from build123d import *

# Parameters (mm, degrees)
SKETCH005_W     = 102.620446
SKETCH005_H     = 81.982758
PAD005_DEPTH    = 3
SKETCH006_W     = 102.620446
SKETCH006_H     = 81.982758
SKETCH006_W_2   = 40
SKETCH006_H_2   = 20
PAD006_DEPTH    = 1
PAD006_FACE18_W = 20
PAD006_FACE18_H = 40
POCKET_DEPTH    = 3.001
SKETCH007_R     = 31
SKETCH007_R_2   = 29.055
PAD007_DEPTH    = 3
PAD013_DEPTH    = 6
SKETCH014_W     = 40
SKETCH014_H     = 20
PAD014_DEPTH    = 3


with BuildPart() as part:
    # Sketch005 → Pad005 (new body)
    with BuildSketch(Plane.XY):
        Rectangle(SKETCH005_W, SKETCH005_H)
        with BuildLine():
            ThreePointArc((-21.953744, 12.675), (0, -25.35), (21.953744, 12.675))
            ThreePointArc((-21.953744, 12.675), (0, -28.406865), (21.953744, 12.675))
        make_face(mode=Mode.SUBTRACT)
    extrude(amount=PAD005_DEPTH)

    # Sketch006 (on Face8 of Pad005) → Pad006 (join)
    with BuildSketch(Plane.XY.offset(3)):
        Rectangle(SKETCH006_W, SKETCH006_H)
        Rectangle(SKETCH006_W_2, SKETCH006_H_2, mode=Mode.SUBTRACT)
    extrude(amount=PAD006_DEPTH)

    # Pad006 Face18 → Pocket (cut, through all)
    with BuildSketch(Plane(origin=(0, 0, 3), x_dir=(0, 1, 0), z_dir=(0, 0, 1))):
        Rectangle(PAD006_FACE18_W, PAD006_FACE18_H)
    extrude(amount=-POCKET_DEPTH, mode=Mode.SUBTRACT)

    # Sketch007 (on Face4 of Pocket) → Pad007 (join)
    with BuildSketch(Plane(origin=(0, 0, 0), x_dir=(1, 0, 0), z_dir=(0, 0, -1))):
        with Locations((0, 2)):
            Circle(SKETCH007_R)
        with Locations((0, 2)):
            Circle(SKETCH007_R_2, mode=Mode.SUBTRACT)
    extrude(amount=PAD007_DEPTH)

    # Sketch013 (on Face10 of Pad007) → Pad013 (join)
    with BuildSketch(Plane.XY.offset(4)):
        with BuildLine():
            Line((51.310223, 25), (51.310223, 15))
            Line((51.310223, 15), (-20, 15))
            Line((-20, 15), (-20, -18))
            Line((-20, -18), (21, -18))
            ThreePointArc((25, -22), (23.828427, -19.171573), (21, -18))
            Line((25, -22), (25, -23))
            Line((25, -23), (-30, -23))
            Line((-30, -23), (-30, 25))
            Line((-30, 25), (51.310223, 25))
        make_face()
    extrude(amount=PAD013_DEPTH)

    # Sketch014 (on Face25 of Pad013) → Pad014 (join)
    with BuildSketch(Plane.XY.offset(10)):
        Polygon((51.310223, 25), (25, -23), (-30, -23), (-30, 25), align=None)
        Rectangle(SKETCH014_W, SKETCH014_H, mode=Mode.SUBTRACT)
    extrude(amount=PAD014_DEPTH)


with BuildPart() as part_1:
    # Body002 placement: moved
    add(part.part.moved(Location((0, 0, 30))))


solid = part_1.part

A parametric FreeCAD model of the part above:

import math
import FreeCAD as App
import Part
import Sketcher

V = App.Vector

doc = App.newDocument("Part")
body = doc.addObject("PartDesign::Body", "Body")

# Sketch on XY plane
sketch1 = doc.addObject("Sketcher::SketchObject", "Sketch")
body.addObject(sketch1)
sketch1.AttachmentSupport = (doc.XY_Plane, [""])
sketch1.MapMode = "FlatFace"
sketch1.addGeometry(Part.LineSegment(V(-51, 41, 0), V(-51, -41, 0)), False)
sketch1.addGeometry(Part.LineSegment(V(-51, -41, 0), V(51, -41, 0)), False)
sketch1.addGeometry(Part.LineSegment(V(51, -41, 0), V(51, 41, 0)), False)
sketch1.addGeometry(Part.LineSegment(V(51, 41, 0), V(-51, 41, 0)), False)
sketch1.addGeometry(Part.ArcOfCircle(Part.Circle(V(0, -2, 0), V(0, 0, 1), 26), math.radians(146), math.radians(394)), False)
sketch1.addGeometry(Part.ArcOfCircle(Part.Circle(V(0, 0, 0), V(0, 0, 1), 25), math.radians(150), math.radians(390)), False)
sketch1.addConstraint(Sketcher.Constraint("Coincident", 0, 2, 1, 1))
sketch1.addConstraint(Sketcher.Constraint("Coincident", 1, 2, 2, 1))
sketch1.addConstraint(Sketcher.Constraint("Coincident", 2, 2, 3, 1))
sketch1.addConstraint(Sketcher.Constraint("Coincident", 3, 2, 0, 1))
sketch1.addConstraint(Sketcher.Constraint("Coincident", 4, 1, 5, 1))
sketch1.addConstraint(Sketcher.Constraint("Coincident", 5, 2, 4, 2))
sketch1.addConstraint(Sketcher.Constraint("Vertical", 0))
sketch1.addConstraint(Sketcher.Constraint("Horizontal", 1))
sketch1.addConstraint(Sketcher.Constraint("Vertical", 2))
sketch1.addConstraint(Sketcher.Constraint("Horizontal", 3))
sketch1.addConstraint(Sketcher.Constraint("Coincident", 5, 3, -1, 1))
sketch1.addConstraint(Sketcher.Constraint("Symmetric", 0, 2, 2, 2, -1, 1))
sketch1.addConstraint(Sketcher.Constraint("PointOnObject", 4, 3, -2))
sketch1.addConstraint(Sketcher.Constraint("Radius", 5, 25.35))
sketch1.addConstraint(Sketcher.Constraint("DistanceY", 4, 3, -1, 1, 2.0))
sketch1.addConstraint(Sketcher.Constraint("DistanceY", -1, 1, 4, 1, 12.675))
sketch1.addConstraint(Sketcher.Constraint("DistanceY", 0, 2, 0, 1, 81.982758))
sketch1.addConstraint(Sketcher.Constraint("DistanceX", 1, 1, 1, 2, 102.620446))
pad1 = doc.addObject("PartDesign::Pad", "Pad")
body.addObject(pad1)
pad1.Profile = sketch1
pad1.Length = 3

# Sketch on XY plane
sketch2 = doc.addObject("Sketcher::SketchObject", "Sketch001")
body.addObject(sketch2)
sketch2.AttachmentSupport = (doc.XY_Plane, [""])
sketch2.MapMode = "FlatFace"
sketch2.AttachmentOffset = App.Placement(V(0, 0, 3), App.Rotation())
sketch2.addGeometry(Part.LineSegment(V(-51, 41, 0), V(-51, -41, 0)), False)
sketch2.addGeometry(Part.LineSegment(V(-51, -41, 0), V(51, -41, 0)), False)
sketch2.addGeometry(Part.LineSegment(V(51, -41, 0), V(51, 41, 0)), False)
sketch2.addGeometry(Part.LineSegment(V(51, 41, 0), V(-51, 41, 0)), False)
sketch2.addGeometry(Part.LineSegment(V(20, -10, 0), V(-20, -10, 0)), False)
sketch2.addGeometry(Part.LineSegment(V(-20, -10, 0), V(-20, 10, 0)), False)
sketch2.addGeometry(Part.LineSegment(V(-20, 10, 0), V(20, 10, 0)), False)
sketch2.addGeometry(Part.LineSegment(V(20, 10, 0), V(20, -10, 0)), False)
sketch2.addConstraint(Sketcher.Constraint("Coincident", 0, 2, 1, 1))
sketch2.addConstraint(Sketcher.Constraint("Coincident", 1, 2, 2, 1))
sketch2.addConstraint(Sketcher.Constraint("Coincident", 2, 2, 3, 1))
sketch2.addConstraint(Sketcher.Constraint("Coincident", 3, 2, 0, 1))
sketch2.addConstraint(Sketcher.Constraint("Coincident", 4, 2, 5, 1))
sketch2.addConstraint(Sketcher.Constraint("Coincident", 5, 2, 6, 1))
sketch2.addConstraint(Sketcher.Constraint("Coincident", 6, 2, 7, 1))
sketch2.addConstraint(Sketcher.Constraint("Coincident", 7, 2, 4, 1))
sketch2.addConstraint(Sketcher.Constraint("Vertical", 0))
sketch2.addConstraint(Sketcher.Constraint("Horizontal", 1))
sketch2.addConstraint(Sketcher.Constraint("Vertical", 2))
sketch2.addConstraint(Sketcher.Constraint("Horizontal", 3))
sketch2.addConstraint(Sketcher.Constraint("Horizontal", 4))
sketch2.addConstraint(Sketcher.Constraint("Vertical", 5))
sketch2.addConstraint(Sketcher.Constraint("Horizontal", 6))
sketch2.addConstraint(Sketcher.Constraint("Vertical", 7))
sketch2.addConstraint(Sketcher.Constraint("Symmetric", 0, 2, 2, 2, -1, 1))
sketch2.addConstraint(Sketcher.Constraint("Symmetric", 4, 2, 6, 2, -1, 1))
sketch2.addConstraint(Sketcher.Constraint("DistanceX", 4, 2, 4, 1, 40.0))
sketch2.addConstraint(Sketcher.Constraint("DistanceY", 5, 1, 5, 2, 20.0))
sketch2.addConstraint(Sketcher.Constraint("DistanceY", 0, 2, 0, 1, 81.982758))
sketch2.addConstraint(Sketcher.Constraint("DistanceX", 1, 1, 1, 2, 102.620446))
pad2 = doc.addObject("PartDesign::Pad", "Pad001")
body.addObject(pad2)
pad2.Profile = sketch2
pad2.Length = 1

# Sketch on XY plane
sketch3 = doc.addObject("Sketcher::SketchObject", "Sketch002")
body.addObject(sketch3)
sketch3.AttachmentSupport = (doc.XY_Plane, [""])
sketch3.MapMode = "FlatFace"
sketch3.AttachmentOffset = App.Placement(V(0, 0, 3), App.Rotation())
sketch3.addGeometry(Part.LineSegment(V(-20, -10, 0), V(20, -10, 0)), False)
sketch3.addGeometry(Part.LineSegment(V(20, -10, 0), V(20, 10, 0)), False)
sketch3.addGeometry(Part.LineSegment(V(20, 10, 0), V(-20, 10, 0)), False)
sketch3.addGeometry(Part.LineSegment(V(-20, 10, 0), V(-20, -10, 0)), False)
sketch3.addConstraint(Sketcher.Constraint("Coincident", 0, 2, 1, 1))
sketch3.addConstraint(Sketcher.Constraint("Coincident", 1, 2, 2, 1))
sketch3.addConstraint(Sketcher.Constraint("Coincident", 2, 2, 3, 1))
sketch3.addConstraint(Sketcher.Constraint("Coincident", 3, 2, 0, 1))
sketch3.addConstraint(Sketcher.Constraint("Horizontal", 0))
sketch3.addConstraint(Sketcher.Constraint("Vertical", 1))
sketch3.addConstraint(Sketcher.Constraint("Horizontal", 2))
sketch3.addConstraint(Sketcher.Constraint("Vertical", 3))
sketch3.addConstraint(Sketcher.Constraint("Symmetric", 0, 2, 2, 2, -1, 1))
sketch3.addConstraint(Sketcher.Constraint("DistanceX", 0, 1, 0, 2, 40.0))
sketch3.addConstraint(Sketcher.Constraint("DistanceY", 1, 1, 1, 2, 20.0))
pocket1 = doc.addObject("PartDesign::Pocket", "Pocket")
body.addObject(pocket1)
pocket1.Profile = sketch3
pocket1.Type = "ThroughAll"

# Sketch on XY plane
sketch4 = doc.addObject("Sketcher::SketchObject", "Sketch003")
body.addObject(sketch4)
sketch4.AttachmentSupport = (doc.XY_Plane, [""])
sketch4.MapMode = "FlatFace"
sketch4.addGeometry(Part.Circle(V(0, -2, 0), V(0, 0, 1), 31), False)
sketch4.addGeometry(Part.Circle(V(0, -2, 0), V(0, 0, 1), 29), False)
sketch4.addConstraint(Sketcher.Constraint("Coincident", 1, 3, 0, 3))
sketch4.addConstraint(Sketcher.Constraint("PointOnObject", 0, 3, -2))
sketch4.addConstraint(Sketcher.Constraint("Diameter", 0, 62.0))
sketch4.addConstraint(Sketcher.Constraint("Diameter", 1, 58.11))
sketch4.addConstraint(Sketcher.Constraint("DistanceY", 0, 3, -1, 1, 2.0))
pad3 = doc.addObject("PartDesign::Pad", "Pad002")
body.addObject(pad3)
pad3.Profile = sketch4
pad3.Length = 3
pad3.Reversed = True

# Sketch on XY plane
sketch5 = doc.addObject("Sketcher::SketchObject", "Sketch004")
body.addObject(sketch5)
sketch5.AttachmentSupport = (doc.XY_Plane, [""])
sketch5.MapMode = "FlatFace"
sketch5.AttachmentOffset = App.Placement(V(0, 0, 4), App.Rotation())
sketch5.addGeometry(Part.LineSegment(V(51.3, 15, 0), V(51.3, 25, 0)), False)
sketch5.addGeometry(Part.LineSegment(V(51.3, 25, 0), V(-30, 25, 0)), False)
sketch5.addGeometry(Part.LineSegment(V(-30, 25, 0), V(-30, -23, 0)), False)
sketch5.addGeometry(Part.LineSegment(V(-30, -23, 0), V(25, -23, 0)), False)
sketch5.addGeometry(Part.LineSegment(V(25, -23, 0), V(25, -22, 0)), False)
sketch5.addGeometry(Part.ArcOfCircle(Part.Circle(V(21, -22, 0), V(0, 0, 1), 4), math.radians(0), math.radians(90)), False)
sketch5.addGeometry(Part.LineSegment(V(21, -18, 0), V(-20, -18, 0)), False)
sketch5.addGeometry(Part.LineSegment(V(-20, -18, 0), V(-20, 15, 0)), False)
sketch5.addGeometry(Part.LineSegment(V(-20, 15, 0), V(51.3, 15, 0)), False)
sketch5.addConstraint(Sketcher.Constraint("Coincident", 0, 2, 1, 1))
sketch5.addConstraint(Sketcher.Constraint("Coincident", 1, 2, 2, 1))
sketch5.addConstraint(Sketcher.Constraint("Coincident", 2, 2, 3, 1))
sketch5.addConstraint(Sketcher.Constraint("Coincident", 3, 2, 4, 1))
sketch5.addConstraint(Sketcher.Constraint("Tangent", 4, 2, 5, 1))
sketch5.addConstraint(Sketcher.Constraint("Tangent", 5, 2, 6, 1))
sketch5.addConstraint(Sketcher.Constraint("Coincident", 6, 2, 7, 1))
sketch5.addConstraint(Sketcher.Constraint("Coincident", 7, 2, 8, 1))
sketch5.addConstraint(Sketcher.Constraint("Coincident", 8, 2, 0, 1))
sketch5.addConstraint(Sketcher.Constraint("Vertical", 0))
sketch5.addConstraint(Sketcher.Constraint("Horizontal", 1))
sketch5.addConstraint(Sketcher.Constraint("Vertical", 2))
sketch5.addConstraint(Sketcher.Constraint("Horizontal", 3))
sketch5.addConstraint(Sketcher.Constraint("Vertical", 4))
sketch5.addConstraint(Sketcher.Constraint("Horizontal", 6))
sketch5.addConstraint(Sketcher.Constraint("Vertical", 7))
sketch5.addConstraint(Sketcher.Constraint("Horizontal", 8))
sketch5.addConstraint(Sketcher.Constraint("Radius", 5, 4.0))
sketch5.addConstraint(Sketcher.Constraint("DistanceX", 3, 1, 3, 2, 55.0))
sketch5.addConstraint(Sketcher.Constraint("DistanceX", 6, 2, 6, 1, 41.0))
sketch5.addConstraint(Sketcher.Constraint("DistanceY", 0, 1, 0, 2, 10.0))
sketch5.addConstraint(Sketcher.Constraint("DistanceY", 2, 2, 2, 1, 48.0))
sketch5.addConstraint(Sketcher.Constraint("DistanceY", 4, 1, 4, 2, 1.0))
sketch5.addConstraint(Sketcher.Constraint("DistanceX", -1, 1, 5, 3, 21.0))
sketch5.addConstraint(Sketcher.Constraint("DistanceY", 5, 3, -1, 1, 22.0))
sketch5.addConstraint(Sketcher.Constraint("DistanceX", 1, 2, 1, 1, 81.310223))
pad4 = doc.addObject("PartDesign::Pad", "Pad003")
body.addObject(pad4)
pad4.Profile = sketch5
pad4.Length = 6

# Sketch on XY plane
sketch6 = doc.addObject("Sketcher::SketchObject", "Sketch005")
body.addObject(sketch6)
sketch6.AttachmentSupport = (doc.XY_Plane, [""])
sketch6.MapMode = "FlatFace"
sketch6.AttachmentOffset = App.Placement(V(0, 0, 10), App.Rotation())
sketch6.addGeometry(Part.LineSegment(V(25, -23, 0), V(51, 25, 0)), False)
sketch6.addGeometry(Part.LineSegment(V(51, 25, 0), V(-30, 25, 0)), False)
sketch6.addGeometry(Part.LineSegment(V(-30, 25, 0), V(-30, -23, 0)), False)
sketch6.addGeometry(Part.LineSegment(V(-30, -23, 0), V(25, -23, 0)), False)
sketch6.addGeometry(Part.LineSegment(V(-20, -10, 0), V(-20, 10, 0)), False)
sketch6.addGeometry(Part.LineSegment(V(-20, 10, 0), V(20, 10, 0)), False)
sketch6.addGeometry(Part.LineSegment(V(20, 10, 0), V(20, -10, 0)), False)
sketch6.addGeometry(Part.LineSegment(V(20, -10, 0), V(-20, -10, 0)), False)
sketch6.addConstraint(Sketcher.Constraint("Coincident", 0, 2, 1, 1))
sketch6.addConstraint(Sketcher.Constraint("Coincident", 1, 2, 2, 1))
sketch6.addConstraint(Sketcher.Constraint("Coincident", 2, 2, 3, 1))
sketch6.addConstraint(Sketcher.Constraint("Coincident", 3, 2, 0, 1))
sketch6.addConstraint(Sketcher.Constraint("Coincident", 4, 2, 5, 1))
sketch6.addConstraint(Sketcher.Constraint("Coincident", 5, 2, 6, 1))
sketch6.addConstraint(Sketcher.Constraint("Coincident", 6, 2, 7, 1))
sketch6.addConstraint(Sketcher.Constraint("Coincident", 7, 2, 4, 1))
sketch6.addConstraint(Sketcher.Constraint("Horizontal", 1))
sketch6.addConstraint(Sketcher.Constraint("Vertical", 2))
sketch6.addConstraint(Sketcher.Constraint("Horizontal", 3))
sketch6.addConstraint(Sketcher.Constraint("Vertical", 4))
sketch6.addConstraint(Sketcher.Constraint("Horizontal", 5))
sketch6.addConstraint(Sketcher.Constraint("Vertical", 6))
sketch6.addConstraint(Sketcher.Constraint("Horizontal", 7))
sketch6.addConstraint(Sketcher.Constraint("Symmetric", 4, 2, 6, 2, -1, 1))
sketch6.addConstraint(Sketcher.Constraint("DistanceX", 3, 1, 3, 2, 55.0))
sketch6.addConstraint(Sketcher.Constraint("DistanceX", 5, 1, 5, 2, 40.0))
sketch6.addConstraint(Sketcher.Constraint("DistanceY", 2, 2, 2, 1, 48.0))
sketch6.addConstraint(Sketcher.Constraint("DistanceY", 4, 1, 4, 2, 20.0))
sketch6.addConstraint(Sketcher.Constraint("DistanceY", -1, 1, 0, 2, 25.0))
sketch6.addConstraint(Sketcher.Constraint("DistanceX", 1, 2, -1, 1, 30.0))
sketch6.addConstraint(Sketcher.Constraint("Distance", 0, 54.73781))
pad5 = doc.addObject("PartDesign::Pad", "Pad004")
body.addObject(pad5)
pad5.Profile = sketch6
pad5.Length = 3
body2 = doc.addObject("PartDesign::Body", "Body001")
doc.recompute()

body.Placement = App.Placement(V(0, 0, 30), App.Rotation(V(0, 0, 1), 0))
boolean = doc.addObject("PartDesign::Boolean", "Boolean")
body2.addObject(boolean)
boolean.Type = "Fuse"
boolean.addObjects([body])

doc.recompute()
